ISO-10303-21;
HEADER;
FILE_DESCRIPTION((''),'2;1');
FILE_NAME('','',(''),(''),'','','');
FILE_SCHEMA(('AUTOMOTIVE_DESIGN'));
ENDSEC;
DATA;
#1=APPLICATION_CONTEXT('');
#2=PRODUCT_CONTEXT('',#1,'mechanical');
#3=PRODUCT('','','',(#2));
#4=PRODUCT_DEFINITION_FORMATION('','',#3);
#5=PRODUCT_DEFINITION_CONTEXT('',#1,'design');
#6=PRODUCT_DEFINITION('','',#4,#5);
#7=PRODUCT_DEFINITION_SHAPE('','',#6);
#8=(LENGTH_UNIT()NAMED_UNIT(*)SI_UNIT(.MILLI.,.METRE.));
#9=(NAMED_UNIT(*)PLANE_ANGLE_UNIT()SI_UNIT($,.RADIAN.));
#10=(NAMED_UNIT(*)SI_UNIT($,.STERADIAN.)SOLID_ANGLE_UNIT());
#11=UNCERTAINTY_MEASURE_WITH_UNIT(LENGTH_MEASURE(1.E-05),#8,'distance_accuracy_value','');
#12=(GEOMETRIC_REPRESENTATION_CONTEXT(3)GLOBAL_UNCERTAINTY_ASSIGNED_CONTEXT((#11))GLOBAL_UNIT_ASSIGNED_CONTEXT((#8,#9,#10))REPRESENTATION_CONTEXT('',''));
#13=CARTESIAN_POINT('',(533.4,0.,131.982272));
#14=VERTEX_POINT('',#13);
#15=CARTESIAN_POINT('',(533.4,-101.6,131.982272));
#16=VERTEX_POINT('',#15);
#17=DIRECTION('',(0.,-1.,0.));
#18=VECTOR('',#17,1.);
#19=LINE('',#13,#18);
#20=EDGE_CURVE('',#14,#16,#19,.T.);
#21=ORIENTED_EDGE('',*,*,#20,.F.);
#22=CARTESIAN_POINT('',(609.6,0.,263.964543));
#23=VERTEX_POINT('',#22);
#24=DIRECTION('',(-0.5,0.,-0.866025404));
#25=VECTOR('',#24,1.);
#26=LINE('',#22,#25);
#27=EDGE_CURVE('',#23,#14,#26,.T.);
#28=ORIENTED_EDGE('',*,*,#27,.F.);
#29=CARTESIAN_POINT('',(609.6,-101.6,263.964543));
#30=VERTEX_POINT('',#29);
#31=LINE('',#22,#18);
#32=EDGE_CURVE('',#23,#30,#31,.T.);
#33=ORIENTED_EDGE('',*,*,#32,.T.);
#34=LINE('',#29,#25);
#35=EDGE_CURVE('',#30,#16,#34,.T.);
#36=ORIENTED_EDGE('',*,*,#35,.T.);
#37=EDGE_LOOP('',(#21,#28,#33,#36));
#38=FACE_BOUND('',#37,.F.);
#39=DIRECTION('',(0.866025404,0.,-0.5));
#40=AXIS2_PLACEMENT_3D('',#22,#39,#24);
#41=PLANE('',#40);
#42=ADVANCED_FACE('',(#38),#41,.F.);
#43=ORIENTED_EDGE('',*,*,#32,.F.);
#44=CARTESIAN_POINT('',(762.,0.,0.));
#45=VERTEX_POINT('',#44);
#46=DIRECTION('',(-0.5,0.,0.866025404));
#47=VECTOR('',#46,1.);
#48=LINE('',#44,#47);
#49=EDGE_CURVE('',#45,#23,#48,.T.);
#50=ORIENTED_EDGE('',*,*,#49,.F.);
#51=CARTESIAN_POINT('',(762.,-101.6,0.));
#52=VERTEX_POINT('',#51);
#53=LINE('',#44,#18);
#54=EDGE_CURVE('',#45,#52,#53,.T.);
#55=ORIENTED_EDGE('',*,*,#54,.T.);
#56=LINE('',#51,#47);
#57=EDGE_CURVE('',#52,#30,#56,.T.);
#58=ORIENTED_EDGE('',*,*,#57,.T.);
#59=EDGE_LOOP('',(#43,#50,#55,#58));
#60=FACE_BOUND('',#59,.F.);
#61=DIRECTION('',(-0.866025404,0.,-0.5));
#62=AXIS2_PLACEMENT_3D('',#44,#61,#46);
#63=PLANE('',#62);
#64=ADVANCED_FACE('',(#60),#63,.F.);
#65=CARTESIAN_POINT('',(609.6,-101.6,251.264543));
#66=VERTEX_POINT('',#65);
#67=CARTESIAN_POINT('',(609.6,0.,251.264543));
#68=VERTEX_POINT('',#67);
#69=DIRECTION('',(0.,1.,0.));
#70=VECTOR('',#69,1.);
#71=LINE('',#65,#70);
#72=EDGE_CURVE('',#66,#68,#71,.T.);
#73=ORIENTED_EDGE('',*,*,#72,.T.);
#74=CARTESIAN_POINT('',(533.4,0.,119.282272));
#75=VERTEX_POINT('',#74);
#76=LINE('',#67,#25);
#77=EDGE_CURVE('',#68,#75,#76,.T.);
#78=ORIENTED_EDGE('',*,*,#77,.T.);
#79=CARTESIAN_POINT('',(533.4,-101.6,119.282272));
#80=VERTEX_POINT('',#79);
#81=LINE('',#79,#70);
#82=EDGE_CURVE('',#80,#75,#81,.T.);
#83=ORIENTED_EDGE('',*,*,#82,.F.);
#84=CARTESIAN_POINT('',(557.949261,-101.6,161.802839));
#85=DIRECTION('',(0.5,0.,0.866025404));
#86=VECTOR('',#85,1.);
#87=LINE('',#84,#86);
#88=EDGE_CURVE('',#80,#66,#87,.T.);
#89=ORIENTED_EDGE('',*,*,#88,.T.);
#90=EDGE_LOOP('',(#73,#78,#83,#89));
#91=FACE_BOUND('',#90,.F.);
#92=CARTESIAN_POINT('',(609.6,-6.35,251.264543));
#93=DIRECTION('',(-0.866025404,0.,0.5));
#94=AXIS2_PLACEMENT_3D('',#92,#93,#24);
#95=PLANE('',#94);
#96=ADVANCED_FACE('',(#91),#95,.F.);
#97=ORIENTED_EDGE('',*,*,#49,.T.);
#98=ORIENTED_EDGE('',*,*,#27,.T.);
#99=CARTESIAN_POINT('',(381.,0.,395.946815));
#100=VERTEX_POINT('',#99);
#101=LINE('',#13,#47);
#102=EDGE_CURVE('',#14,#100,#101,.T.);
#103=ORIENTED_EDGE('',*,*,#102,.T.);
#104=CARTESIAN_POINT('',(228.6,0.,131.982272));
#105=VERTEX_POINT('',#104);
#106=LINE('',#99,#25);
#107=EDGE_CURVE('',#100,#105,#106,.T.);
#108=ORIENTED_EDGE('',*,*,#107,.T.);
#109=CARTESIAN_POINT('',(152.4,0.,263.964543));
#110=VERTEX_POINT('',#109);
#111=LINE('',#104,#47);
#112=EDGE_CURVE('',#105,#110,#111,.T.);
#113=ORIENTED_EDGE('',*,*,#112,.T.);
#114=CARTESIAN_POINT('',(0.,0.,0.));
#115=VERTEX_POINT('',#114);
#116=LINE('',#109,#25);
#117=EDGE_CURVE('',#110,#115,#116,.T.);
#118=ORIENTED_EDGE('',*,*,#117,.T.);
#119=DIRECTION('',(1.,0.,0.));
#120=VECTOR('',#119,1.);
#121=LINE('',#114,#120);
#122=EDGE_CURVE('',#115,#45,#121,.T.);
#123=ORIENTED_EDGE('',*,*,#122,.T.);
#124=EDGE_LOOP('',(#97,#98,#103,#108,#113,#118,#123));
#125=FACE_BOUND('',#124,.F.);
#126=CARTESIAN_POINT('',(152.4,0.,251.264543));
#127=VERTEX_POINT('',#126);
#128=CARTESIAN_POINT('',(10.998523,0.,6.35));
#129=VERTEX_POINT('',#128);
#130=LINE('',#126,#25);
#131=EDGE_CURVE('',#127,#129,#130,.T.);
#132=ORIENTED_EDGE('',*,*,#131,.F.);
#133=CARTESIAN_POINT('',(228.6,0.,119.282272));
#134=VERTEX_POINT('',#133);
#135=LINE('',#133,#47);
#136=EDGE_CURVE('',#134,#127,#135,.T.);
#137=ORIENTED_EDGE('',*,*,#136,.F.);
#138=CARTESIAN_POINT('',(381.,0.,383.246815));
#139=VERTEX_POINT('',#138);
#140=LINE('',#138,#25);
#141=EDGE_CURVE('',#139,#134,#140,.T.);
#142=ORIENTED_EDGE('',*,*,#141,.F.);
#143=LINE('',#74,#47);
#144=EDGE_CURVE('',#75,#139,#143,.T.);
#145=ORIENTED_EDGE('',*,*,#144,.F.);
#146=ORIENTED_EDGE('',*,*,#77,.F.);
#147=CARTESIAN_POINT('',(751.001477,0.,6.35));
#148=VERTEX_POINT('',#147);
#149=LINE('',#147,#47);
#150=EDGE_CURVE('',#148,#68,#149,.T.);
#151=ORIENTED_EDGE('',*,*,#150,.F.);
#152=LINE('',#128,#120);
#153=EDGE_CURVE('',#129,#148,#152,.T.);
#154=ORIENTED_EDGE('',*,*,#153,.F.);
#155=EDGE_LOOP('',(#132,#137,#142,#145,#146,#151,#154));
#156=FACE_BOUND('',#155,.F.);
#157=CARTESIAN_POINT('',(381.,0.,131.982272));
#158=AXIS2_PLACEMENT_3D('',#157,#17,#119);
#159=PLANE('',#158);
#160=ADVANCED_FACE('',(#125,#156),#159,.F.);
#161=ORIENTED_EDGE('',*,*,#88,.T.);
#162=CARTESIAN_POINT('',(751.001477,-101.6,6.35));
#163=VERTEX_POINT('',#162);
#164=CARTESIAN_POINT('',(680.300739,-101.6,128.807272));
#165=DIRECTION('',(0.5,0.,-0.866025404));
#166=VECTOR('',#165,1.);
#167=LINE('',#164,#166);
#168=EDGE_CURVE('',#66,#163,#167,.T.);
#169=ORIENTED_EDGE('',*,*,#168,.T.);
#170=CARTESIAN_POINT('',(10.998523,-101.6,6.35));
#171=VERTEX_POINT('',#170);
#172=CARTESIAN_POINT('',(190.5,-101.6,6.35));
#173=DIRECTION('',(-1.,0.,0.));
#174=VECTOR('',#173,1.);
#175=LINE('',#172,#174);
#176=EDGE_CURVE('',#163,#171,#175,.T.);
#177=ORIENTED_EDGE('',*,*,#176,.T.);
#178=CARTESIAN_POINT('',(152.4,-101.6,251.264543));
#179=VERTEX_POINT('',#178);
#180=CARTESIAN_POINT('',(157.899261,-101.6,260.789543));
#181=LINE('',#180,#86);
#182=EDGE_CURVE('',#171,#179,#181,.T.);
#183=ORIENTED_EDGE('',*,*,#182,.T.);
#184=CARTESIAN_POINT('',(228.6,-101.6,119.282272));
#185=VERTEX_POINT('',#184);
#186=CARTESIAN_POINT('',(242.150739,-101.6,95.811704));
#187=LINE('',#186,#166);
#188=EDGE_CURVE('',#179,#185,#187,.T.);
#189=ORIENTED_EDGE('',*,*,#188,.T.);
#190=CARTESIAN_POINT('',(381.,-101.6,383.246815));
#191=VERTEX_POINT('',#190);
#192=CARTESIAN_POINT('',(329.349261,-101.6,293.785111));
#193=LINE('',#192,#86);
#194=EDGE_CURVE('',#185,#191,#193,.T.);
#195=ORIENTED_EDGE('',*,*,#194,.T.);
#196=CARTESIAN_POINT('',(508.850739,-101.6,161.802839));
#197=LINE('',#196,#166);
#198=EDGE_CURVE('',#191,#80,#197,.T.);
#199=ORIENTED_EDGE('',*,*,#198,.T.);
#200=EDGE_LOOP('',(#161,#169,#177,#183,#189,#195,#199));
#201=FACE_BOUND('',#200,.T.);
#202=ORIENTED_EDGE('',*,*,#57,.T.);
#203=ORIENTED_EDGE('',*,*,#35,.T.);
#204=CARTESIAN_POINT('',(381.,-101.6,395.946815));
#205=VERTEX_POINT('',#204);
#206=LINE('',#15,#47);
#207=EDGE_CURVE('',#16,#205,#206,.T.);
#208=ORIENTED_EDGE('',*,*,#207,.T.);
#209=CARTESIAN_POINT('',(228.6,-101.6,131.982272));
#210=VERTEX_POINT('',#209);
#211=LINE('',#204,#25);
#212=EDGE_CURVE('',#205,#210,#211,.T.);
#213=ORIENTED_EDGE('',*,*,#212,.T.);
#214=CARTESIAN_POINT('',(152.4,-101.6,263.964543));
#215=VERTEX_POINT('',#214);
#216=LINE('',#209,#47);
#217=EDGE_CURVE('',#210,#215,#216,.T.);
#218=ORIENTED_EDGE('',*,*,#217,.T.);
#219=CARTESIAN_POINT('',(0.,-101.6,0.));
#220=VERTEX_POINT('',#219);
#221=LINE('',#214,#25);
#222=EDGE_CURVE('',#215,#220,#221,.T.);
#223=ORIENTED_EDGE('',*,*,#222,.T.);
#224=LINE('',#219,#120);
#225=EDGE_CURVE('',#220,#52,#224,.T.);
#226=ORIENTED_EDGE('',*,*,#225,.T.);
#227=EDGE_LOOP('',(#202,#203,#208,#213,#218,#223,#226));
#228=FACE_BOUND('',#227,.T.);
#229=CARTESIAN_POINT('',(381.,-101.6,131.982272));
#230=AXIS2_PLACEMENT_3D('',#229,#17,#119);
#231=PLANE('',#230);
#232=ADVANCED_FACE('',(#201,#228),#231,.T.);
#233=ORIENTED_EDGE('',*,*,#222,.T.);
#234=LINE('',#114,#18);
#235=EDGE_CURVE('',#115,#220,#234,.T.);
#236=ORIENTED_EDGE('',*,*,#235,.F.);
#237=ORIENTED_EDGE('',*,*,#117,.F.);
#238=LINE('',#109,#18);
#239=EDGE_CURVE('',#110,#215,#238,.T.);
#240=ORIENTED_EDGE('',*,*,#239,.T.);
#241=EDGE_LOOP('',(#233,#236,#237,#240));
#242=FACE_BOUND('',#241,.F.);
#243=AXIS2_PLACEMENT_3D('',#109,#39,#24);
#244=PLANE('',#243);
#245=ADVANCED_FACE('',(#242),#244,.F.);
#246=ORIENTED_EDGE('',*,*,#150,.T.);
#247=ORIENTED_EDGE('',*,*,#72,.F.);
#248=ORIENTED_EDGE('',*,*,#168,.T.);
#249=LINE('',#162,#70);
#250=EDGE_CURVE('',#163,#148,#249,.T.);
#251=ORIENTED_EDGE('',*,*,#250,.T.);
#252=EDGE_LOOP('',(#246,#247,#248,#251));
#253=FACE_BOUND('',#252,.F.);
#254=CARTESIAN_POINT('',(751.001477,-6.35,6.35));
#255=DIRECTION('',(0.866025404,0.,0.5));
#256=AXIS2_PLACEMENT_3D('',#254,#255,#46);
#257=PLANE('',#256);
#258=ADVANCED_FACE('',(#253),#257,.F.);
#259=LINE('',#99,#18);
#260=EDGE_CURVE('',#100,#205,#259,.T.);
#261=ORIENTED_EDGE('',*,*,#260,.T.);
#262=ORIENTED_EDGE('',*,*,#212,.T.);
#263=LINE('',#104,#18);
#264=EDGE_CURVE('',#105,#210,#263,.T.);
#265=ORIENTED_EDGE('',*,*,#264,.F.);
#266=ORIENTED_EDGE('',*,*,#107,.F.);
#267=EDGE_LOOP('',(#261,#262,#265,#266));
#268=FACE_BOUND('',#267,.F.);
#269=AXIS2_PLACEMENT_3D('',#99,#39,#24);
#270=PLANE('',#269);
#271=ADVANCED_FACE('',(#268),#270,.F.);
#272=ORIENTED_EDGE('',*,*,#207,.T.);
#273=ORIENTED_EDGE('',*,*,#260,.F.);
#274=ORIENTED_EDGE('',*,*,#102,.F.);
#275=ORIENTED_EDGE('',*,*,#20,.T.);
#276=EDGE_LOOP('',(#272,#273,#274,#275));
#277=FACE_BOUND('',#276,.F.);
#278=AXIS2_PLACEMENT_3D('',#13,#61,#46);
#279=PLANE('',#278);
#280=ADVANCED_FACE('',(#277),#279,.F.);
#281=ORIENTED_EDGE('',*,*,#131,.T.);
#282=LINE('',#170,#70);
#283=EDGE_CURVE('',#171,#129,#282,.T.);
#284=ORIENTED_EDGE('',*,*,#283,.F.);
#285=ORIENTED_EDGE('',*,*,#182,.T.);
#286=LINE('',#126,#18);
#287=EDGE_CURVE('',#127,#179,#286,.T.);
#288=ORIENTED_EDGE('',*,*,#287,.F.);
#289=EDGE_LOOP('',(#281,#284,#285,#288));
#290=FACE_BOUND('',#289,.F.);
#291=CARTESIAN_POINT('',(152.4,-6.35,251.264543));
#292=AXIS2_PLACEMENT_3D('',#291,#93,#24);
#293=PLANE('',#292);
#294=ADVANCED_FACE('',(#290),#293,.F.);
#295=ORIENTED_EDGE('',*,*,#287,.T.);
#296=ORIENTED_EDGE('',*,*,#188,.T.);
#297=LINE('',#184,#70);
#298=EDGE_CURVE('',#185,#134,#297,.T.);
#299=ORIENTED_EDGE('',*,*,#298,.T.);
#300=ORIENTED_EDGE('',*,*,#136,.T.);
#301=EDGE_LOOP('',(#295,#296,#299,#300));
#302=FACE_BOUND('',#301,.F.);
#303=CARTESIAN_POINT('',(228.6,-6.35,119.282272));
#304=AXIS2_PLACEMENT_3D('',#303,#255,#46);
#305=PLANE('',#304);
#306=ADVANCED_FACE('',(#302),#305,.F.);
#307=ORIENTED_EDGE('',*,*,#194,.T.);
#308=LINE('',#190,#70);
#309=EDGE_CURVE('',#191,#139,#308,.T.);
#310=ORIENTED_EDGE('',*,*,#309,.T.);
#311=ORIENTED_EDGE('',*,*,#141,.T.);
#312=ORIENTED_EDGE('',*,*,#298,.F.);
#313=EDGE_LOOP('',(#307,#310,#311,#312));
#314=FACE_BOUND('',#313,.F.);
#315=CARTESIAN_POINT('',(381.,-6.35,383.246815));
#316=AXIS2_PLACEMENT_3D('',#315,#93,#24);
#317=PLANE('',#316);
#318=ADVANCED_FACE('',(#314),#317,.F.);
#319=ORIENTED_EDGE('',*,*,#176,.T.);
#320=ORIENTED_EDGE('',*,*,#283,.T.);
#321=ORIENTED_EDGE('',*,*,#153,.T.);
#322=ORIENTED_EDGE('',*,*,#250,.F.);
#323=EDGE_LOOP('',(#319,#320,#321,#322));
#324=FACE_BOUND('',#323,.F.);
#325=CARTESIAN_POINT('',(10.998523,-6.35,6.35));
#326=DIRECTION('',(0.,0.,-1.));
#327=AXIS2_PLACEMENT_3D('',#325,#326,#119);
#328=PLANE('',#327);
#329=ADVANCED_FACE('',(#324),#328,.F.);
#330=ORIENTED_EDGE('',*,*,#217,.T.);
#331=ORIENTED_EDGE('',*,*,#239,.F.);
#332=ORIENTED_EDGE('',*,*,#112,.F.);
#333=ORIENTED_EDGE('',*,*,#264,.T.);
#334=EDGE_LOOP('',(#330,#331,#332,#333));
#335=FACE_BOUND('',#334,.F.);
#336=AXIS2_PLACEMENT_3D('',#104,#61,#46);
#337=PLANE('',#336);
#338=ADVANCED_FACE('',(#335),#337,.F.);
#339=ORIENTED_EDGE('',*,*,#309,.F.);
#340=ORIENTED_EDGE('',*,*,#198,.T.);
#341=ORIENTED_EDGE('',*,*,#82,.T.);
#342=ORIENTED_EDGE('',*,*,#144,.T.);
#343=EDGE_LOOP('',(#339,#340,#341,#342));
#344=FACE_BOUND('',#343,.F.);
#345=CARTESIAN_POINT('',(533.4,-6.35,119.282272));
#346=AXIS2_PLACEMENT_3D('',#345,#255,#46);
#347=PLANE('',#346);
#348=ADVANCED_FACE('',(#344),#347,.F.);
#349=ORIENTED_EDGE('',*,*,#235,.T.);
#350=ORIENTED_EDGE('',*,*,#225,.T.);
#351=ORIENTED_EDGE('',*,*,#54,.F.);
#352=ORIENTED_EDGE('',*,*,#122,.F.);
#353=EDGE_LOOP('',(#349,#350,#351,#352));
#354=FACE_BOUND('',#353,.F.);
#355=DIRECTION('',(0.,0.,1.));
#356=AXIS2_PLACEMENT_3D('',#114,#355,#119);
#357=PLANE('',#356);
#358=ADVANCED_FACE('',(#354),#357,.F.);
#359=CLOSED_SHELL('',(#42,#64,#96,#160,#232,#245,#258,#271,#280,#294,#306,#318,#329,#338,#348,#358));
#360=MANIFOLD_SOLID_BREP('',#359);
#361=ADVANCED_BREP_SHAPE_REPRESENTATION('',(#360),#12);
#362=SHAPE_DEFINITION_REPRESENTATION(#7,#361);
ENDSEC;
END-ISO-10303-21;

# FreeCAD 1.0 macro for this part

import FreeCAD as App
import Part
import Sketcher

V = App.Vector
Q = App.Units.Quantity


def faces_at(feature, points):
    """Names of the faces that lie closest to the given points."""
    faces = feature.Shape.Faces
    near = lambda p: min(range(len(faces)), key=lambda i: faces[i].distToShape(Part.Vertex(*p))[0])
    return sorted({f"Face{near(p) + 1}" for p in points})


def add_polygon(sketch, points):
    """Adds a closed chain of lines whose ends are joined by coincident constraints."""
    first, n = sketch.GeometryCount, len(points)
    for a, b in zip(points, points[1:] + points[:1]):
        sketch.addGeometry(Part.LineSegment(App.Vector(*a, 0), App.Vector(*b, 0)), False)
    for i in range(n):
        sketch.addConstraint(Sketcher.Constraint("Coincident", first + i, 2, first + (i + 1) % n, 1))

doc = App.newDocument("Part")
params = doc.addObject("Spreadsheet::Sheet", "Params")
for row, (alias, value) in enumerate([
    ("sketch1_width", "30 in"),
    ("sketch1_length", "12 in"),
    ("sketch1_length2", "6 in"),
    ("pad1_length", "4 in"),
    ("thickness_wall", "0.25 in"),
    ("sketch2_length", "6 in"),
    ("sketch2_length2", "12 in"),
    ("pocket1_length", "0.25 in"),
], start=1):
    params.set(f"A{row}", alias)
    params.set(f"B{row}", "=" + value)
    params.setAlias(f"B{row}", alias)

body = doc.addObject("PartDesign::Body", "Body")

sketch1 = body.newObject("Sketcher::SketchObject", "Sketch")
sketch1.AttachmentSupport = (doc.getObject("XZ_Plane"), [""])
sketch1.MapMode = "FlatFace"
add_polygon(sketch1, [(152.4, 263.964543), (0, 0), (762, 0), (609.6, 263.964543), (533.4, 131.982272), (381, 395.946815), (228.6, 131.982272)])
sketch1.addConstraint(Sketcher.Constraint("Horizontal", 1))
sketch1.addConstraint(Sketcher.Constraint("Coincident", 0, 2, -1, 1))
sketch1.addConstraint(Sketcher.Constraint("Parallel", 0, 3))
sketch1.addConstraint(Sketcher.Constraint("Parallel", 2, 4))
sketch1.addConstraint(Sketcher.Constraint("Parallel", 3, 5))
sketch1.addConstraint(Sketcher.Constraint("Parallel", 4, 6))
sketch1.addConstraint(Sketcher.Constraint("Horizontal", 3, 2, 5, 2))
sketch1.addConstraint(Sketcher.Constraint("Horizontal", 2, 2, 6, 2))
sketch1.addConstraint(Sketcher.Constraint("Equal", 0, 2))
sketch1.addConstraint(Sketcher.Constraint("Equal", 2, 4))
sketch1.addConstraint(Sketcher.Constraint("DistanceX", 1, 1, 1, 2, Q("30 in")))
sketch1.addConstraint(Sketcher.Constraint("Distance", 0, Q("12 in")))
sketch1.addConstraint(Sketcher.Constraint("Distance", 3, Q("6 in")))
sketch1.setExpression("Constraints[17]", "Params.sketch1_width")
sketch1.setExpression("Constraints[18]", "Params.sketch1_length")
sketch1.setExpression("Constraints[19]", "Params.sketch1_length2")
pad1 = body.newObject("PartDesign::Pad", "Pad")
pad1.Profile = sketch1
pad1.setExpression("Length", "Params.pad1_length")
doc.recompute()

thickness = body.newObject("PartDesign::Thickness", "Thickness")
thickness.Base = (pad1, faces_at(pad1, [(381, -101.6, 197.973)]))
thickness.setExpression("Value", "Params.thickness_wall")
thickness.Reversed = True
thickness.Join = "Intersection"

sketch2 = body.newObject("Sketcher::SketchObject", "Sketch001")
sketch2.AttachmentSupport = (doc.getObject("XZ_Plane"), [""])
sketch2.MapMode = "FlatFace"
sketch2.AttachmentOffset = App.Placement(V(0, 0, 0.25 * 25.4), App.Rotation())
add_polygon(sketch2, [(152.4, 251.264543), (10.998523, 6.35), (751.001477, 6.35), (609.6, 251.264543), (533.4, 119.282272), (381, 383.246815), (228.6, 119.282272)])
sketch2.addConstraint(Sketcher.Constraint("Horizontal", 1))
sketch2.addConstraint(Sketcher.Constraint("Parallel", 0, 3))
sketch2.addConstraint(Sketcher.Constraint("Parallel", 2, 4))
sketch2.addConstraint(Sketcher.Constraint("Parallel", 3, 5))
sketch2.addConstraint(Sketcher.Constraint("Parallel", 4, 6))
sketch2.addConstraint(Sketcher.Constraint("Horizontal", 3, 2, 5, 2))
sketch2.addConstraint(Sketcher.Constraint("Horizontal", 2, 2, 6, 2))
sketch2.addConstraint(Sketcher.Constraint("Equal", 0, 2))
sketch2.addConstraint(Sketcher.Constraint("Distance", 3, Q("6 in")))
sketch2.addConstraint(Sketcher.Constraint("Distance", 4, Q("12 in")))
sketch2.addConstraint(Sketcher.Constraint("DistanceX", -1, 1, 2, 2, Q("24 in")))
sketch2.addConstraint(Sketcher.Constraint("DistanceX", -1, 1, 3, 2, Q("21 in")))
sketch2.addConstraint(Sketcher.Constraint("DistanceY", -1, 1, 0, 2, Q("0.25 in")))
sketch2.addConstraint(Sketcher.Constraint("DistanceX", 1, 1, 1, 2, Q("740.002955 mm")))
sketch2.setExpression("Constraints[15]", "Params.sketch2_length")
sketch2.setExpression("Constraints[16]", "Params.sketch2_length2")
pocket1 = body.newObject("PartDesign::Pocket", "Pocket")
pocket1.Profile = sketch2
pocket1.setExpression("Length", "Params.pocket1_length")

doc.recompute()
